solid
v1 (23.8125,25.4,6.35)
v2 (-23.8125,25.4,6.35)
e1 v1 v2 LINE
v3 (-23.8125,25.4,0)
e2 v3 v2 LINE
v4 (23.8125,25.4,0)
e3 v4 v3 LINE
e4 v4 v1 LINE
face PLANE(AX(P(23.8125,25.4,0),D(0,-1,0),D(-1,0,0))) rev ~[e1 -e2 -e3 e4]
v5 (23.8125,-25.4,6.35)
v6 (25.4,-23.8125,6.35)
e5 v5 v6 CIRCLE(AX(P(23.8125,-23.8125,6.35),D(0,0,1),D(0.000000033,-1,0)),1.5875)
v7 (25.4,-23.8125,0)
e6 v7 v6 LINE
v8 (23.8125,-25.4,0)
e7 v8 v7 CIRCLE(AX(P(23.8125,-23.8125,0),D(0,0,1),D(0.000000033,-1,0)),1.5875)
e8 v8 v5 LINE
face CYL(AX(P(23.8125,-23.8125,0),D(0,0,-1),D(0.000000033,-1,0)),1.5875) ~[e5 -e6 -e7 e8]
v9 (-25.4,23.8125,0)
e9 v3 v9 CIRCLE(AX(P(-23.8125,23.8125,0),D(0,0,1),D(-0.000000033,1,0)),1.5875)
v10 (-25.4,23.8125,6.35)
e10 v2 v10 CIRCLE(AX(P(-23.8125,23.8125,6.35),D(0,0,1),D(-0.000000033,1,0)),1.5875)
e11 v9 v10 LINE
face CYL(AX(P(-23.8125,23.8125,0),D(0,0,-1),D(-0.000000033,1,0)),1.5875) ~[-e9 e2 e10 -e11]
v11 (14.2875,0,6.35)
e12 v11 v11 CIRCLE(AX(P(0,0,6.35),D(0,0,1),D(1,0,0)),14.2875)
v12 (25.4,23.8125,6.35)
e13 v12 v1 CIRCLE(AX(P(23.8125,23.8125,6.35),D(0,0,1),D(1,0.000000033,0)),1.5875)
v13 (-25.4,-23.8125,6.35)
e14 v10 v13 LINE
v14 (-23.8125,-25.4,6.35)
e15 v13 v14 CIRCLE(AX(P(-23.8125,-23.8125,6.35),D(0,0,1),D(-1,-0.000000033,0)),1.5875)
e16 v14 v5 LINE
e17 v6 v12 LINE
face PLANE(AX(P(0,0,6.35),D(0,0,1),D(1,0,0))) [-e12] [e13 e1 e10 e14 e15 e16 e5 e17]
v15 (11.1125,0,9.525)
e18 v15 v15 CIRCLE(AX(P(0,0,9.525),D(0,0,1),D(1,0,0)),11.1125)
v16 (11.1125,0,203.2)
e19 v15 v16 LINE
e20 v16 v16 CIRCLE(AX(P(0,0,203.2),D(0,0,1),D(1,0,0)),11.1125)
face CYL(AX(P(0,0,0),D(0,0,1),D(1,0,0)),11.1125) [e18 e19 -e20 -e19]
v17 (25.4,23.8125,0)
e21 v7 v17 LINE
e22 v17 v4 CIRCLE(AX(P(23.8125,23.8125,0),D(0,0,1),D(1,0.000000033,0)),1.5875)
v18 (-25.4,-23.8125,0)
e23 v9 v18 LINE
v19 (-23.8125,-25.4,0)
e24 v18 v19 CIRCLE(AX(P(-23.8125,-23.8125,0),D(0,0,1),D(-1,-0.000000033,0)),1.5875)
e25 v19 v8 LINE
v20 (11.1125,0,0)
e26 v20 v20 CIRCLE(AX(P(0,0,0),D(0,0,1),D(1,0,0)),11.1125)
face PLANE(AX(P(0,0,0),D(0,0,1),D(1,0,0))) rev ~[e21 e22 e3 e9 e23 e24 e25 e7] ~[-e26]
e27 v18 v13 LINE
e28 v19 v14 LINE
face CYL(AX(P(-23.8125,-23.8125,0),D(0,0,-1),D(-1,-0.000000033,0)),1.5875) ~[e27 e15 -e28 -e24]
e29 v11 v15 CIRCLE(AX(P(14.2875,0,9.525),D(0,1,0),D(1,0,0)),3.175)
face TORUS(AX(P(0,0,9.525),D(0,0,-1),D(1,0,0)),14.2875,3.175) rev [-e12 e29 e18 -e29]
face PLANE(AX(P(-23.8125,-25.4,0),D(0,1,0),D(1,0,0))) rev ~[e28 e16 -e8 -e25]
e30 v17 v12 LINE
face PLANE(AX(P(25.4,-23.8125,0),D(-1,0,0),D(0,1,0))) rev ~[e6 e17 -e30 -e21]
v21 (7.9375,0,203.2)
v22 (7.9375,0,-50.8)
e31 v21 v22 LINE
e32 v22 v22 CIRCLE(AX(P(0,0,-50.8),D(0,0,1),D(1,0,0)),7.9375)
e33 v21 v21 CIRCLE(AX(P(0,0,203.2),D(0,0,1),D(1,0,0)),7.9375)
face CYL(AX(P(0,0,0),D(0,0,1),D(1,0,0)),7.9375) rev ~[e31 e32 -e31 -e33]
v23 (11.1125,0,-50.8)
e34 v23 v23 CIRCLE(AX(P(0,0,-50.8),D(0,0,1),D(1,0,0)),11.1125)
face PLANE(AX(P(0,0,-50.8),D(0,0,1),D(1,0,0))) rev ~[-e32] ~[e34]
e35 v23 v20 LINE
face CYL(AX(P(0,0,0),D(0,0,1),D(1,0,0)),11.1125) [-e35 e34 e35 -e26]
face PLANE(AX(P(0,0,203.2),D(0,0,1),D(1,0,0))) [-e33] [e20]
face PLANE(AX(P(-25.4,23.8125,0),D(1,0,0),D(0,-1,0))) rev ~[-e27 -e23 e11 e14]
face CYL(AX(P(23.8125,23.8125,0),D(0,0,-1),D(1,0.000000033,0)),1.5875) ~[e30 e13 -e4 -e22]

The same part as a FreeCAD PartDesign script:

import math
import FreeCAD as App
import Part
import Sketcher
from FreeCAD import Vector
Q = App.Units.Quantity


def edges_at(feature, points):
    """Names of the edges that pass closest to the given points."""
    edges = feature.Shape.Edges
    near = lambda p: min(range(len(edges)), key=lambda i: edges[i].distToShape(Part.Vertex(*p))[0])
    return sorted({f"Edge{near(p) + 1}" for p in points})

doc = App.newDocument("Part")
body = doc.addObject("PartDesign::Body", "Body")

sketch1 = doc.addObject("Sketcher::SketchObject", "Sketch")
body.addObject(sketch1)
sketch1.AttachmentSupport = (doc.XY_Plane, [""])
sketch1.MapMode = "FlatFace"
sketch1.addGeometry([
    Part.Circle(Vector(0, 0, 0), Vector(0, 0, 1), 11),
    Part.Circle(Vector(0, 0, 0), Vector(0, 0, 1), 8),
], False)
sketch1.addConstraint([
    Sketcher.Constraint("Coincident", 0, 3, -1, 1),
    Sketcher.Constraint("Coincident", 1, 3, -1, 1),
    Sketcher.Constraint("Diameter", 0, Q("0.875 in")),
    Sketcher.Constraint("Diameter", 1, Q("0.625 in")),
])
pad1 = doc.addObject("PartDesign::Pad", "Pad")
body.addObject(pad1)
pad1.Profile = sketch1
pad1.Type = "TwoLengths"
pad1.Length = Q("8 in")
pad1.Length2 = Q("2 in")

sketch2 = doc.addObject("Sketcher::SketchObject", "Sketch001")
body.addObject(sketch2)
sketch2.AttachmentSupport = (doc.XY_Plane, [""])
sketch2.MapMode = "FlatFace"
sketch2.addGeometry([
    Part.ArcOfCircle(Part.Circle(Vector(23.8, 23.8, 0), Vector(0, 0, 1), 1.6), math.radians(0), math.radians(90)),
    Part.LineSegment(Vector(23.8, 25.4, 0), Vector(-23.8, 25.4, 0)),
    Part.ArcOfCircle(Part.Circle(Vector(-23.8, 23.8, 0), Vector(0, 0, 1), 1.6), math.radians(90), math.radians(180)),
    Part.LineSegment(Vector(-25.4, 23.8, 0), Vector(-25.4, -23.8, 0)),
    Part.ArcOfCircle(Part.Circle(Vector(-23.8, -23.8, 0), Vector(0, 0, 1), 1.6), math.radians(-180), math.radians(-90)),
    Part.LineSegment(Vector(-23.8, -25.4, 0), Vector(23.8, -25.4, 0)),
    Part.ArcOfCircle(Part.Circle(Vector(23.8, -23.8, 0), Vector(0, 0, 1), 1.6), math.radians(-90), math.radians(0)),
    Part.LineSegment(Vector(25.4, -23.8, 0), Vector(25.4, 23.8, 0)),
    Part.Circle(Vector(0, 0, 0), Vector(0, 0, 1), 7.9),
], False)
sketch2.addConstraint([
    Sketcher.Constraint("Tangent", 0, 2, 1, 1),
    Sketcher.Constraint("Tangent", 1, 2, 2, 1),
    Sketcher.Constraint("Tangent", 2, 2, 3, 1),
    Sketcher.Constraint("Tangent", 3, 2, 4, 1),
    Sketcher.Constraint("Tangent", 4, 2, 5, 1),
    Sketcher.Constraint("Tangent", 5, 2, 6, 1),
    Sketcher.Constraint("Tangent", 6, 2, 7, 1),
    Sketcher.Constraint("Tangent", 7, 2, 0, 1),
    Sketcher.Constraint("Horizontal", 1),
    Sketcher.Constraint("Vertical", 3),
    Sketcher.Constraint("Horizontal", 5),
    Sketcher.Constraint("Vertical", 7),
    Sketcher.Constraint("Coincident", 8, 3, -1, 1),
    Sketcher.Constraint("Equal", 0, 2),
    Sketcher.Constraint("Equal", 2, 4),
    Sketcher.Constraint("Equal", 4, 6),
    Sketcher.Constraint("Symmetric", 0, 3, 4, 3, -1, 1),
    Sketcher.Constraint("Equal", 5, 3),
    Sketcher.Constraint("Diameter", 8, Q("0.625 in")),
    Sketcher.Constraint("DistanceY", -1, 1, 0, 2, Q("1 in")),
    Sketcher.Constraint("Radius", 0, Q("0.0625 in")),
])
pad2 = doc.addObject("PartDesign::Pad", "Pad001")
body.addObject(pad2)
pad2.Profile = sketch2
pad2.Length = Q("0.25 in")
doc.recompute()

fillet = doc.addObject("PartDesign::Fillet", "Fillet")
body.addObject(fillet)
fillet.Base = (pad2, edges_at(pad2, [(-11.113, 0, 6.35)]))
fillet.Radius = Q("0.125 in")

doc.recompute()
